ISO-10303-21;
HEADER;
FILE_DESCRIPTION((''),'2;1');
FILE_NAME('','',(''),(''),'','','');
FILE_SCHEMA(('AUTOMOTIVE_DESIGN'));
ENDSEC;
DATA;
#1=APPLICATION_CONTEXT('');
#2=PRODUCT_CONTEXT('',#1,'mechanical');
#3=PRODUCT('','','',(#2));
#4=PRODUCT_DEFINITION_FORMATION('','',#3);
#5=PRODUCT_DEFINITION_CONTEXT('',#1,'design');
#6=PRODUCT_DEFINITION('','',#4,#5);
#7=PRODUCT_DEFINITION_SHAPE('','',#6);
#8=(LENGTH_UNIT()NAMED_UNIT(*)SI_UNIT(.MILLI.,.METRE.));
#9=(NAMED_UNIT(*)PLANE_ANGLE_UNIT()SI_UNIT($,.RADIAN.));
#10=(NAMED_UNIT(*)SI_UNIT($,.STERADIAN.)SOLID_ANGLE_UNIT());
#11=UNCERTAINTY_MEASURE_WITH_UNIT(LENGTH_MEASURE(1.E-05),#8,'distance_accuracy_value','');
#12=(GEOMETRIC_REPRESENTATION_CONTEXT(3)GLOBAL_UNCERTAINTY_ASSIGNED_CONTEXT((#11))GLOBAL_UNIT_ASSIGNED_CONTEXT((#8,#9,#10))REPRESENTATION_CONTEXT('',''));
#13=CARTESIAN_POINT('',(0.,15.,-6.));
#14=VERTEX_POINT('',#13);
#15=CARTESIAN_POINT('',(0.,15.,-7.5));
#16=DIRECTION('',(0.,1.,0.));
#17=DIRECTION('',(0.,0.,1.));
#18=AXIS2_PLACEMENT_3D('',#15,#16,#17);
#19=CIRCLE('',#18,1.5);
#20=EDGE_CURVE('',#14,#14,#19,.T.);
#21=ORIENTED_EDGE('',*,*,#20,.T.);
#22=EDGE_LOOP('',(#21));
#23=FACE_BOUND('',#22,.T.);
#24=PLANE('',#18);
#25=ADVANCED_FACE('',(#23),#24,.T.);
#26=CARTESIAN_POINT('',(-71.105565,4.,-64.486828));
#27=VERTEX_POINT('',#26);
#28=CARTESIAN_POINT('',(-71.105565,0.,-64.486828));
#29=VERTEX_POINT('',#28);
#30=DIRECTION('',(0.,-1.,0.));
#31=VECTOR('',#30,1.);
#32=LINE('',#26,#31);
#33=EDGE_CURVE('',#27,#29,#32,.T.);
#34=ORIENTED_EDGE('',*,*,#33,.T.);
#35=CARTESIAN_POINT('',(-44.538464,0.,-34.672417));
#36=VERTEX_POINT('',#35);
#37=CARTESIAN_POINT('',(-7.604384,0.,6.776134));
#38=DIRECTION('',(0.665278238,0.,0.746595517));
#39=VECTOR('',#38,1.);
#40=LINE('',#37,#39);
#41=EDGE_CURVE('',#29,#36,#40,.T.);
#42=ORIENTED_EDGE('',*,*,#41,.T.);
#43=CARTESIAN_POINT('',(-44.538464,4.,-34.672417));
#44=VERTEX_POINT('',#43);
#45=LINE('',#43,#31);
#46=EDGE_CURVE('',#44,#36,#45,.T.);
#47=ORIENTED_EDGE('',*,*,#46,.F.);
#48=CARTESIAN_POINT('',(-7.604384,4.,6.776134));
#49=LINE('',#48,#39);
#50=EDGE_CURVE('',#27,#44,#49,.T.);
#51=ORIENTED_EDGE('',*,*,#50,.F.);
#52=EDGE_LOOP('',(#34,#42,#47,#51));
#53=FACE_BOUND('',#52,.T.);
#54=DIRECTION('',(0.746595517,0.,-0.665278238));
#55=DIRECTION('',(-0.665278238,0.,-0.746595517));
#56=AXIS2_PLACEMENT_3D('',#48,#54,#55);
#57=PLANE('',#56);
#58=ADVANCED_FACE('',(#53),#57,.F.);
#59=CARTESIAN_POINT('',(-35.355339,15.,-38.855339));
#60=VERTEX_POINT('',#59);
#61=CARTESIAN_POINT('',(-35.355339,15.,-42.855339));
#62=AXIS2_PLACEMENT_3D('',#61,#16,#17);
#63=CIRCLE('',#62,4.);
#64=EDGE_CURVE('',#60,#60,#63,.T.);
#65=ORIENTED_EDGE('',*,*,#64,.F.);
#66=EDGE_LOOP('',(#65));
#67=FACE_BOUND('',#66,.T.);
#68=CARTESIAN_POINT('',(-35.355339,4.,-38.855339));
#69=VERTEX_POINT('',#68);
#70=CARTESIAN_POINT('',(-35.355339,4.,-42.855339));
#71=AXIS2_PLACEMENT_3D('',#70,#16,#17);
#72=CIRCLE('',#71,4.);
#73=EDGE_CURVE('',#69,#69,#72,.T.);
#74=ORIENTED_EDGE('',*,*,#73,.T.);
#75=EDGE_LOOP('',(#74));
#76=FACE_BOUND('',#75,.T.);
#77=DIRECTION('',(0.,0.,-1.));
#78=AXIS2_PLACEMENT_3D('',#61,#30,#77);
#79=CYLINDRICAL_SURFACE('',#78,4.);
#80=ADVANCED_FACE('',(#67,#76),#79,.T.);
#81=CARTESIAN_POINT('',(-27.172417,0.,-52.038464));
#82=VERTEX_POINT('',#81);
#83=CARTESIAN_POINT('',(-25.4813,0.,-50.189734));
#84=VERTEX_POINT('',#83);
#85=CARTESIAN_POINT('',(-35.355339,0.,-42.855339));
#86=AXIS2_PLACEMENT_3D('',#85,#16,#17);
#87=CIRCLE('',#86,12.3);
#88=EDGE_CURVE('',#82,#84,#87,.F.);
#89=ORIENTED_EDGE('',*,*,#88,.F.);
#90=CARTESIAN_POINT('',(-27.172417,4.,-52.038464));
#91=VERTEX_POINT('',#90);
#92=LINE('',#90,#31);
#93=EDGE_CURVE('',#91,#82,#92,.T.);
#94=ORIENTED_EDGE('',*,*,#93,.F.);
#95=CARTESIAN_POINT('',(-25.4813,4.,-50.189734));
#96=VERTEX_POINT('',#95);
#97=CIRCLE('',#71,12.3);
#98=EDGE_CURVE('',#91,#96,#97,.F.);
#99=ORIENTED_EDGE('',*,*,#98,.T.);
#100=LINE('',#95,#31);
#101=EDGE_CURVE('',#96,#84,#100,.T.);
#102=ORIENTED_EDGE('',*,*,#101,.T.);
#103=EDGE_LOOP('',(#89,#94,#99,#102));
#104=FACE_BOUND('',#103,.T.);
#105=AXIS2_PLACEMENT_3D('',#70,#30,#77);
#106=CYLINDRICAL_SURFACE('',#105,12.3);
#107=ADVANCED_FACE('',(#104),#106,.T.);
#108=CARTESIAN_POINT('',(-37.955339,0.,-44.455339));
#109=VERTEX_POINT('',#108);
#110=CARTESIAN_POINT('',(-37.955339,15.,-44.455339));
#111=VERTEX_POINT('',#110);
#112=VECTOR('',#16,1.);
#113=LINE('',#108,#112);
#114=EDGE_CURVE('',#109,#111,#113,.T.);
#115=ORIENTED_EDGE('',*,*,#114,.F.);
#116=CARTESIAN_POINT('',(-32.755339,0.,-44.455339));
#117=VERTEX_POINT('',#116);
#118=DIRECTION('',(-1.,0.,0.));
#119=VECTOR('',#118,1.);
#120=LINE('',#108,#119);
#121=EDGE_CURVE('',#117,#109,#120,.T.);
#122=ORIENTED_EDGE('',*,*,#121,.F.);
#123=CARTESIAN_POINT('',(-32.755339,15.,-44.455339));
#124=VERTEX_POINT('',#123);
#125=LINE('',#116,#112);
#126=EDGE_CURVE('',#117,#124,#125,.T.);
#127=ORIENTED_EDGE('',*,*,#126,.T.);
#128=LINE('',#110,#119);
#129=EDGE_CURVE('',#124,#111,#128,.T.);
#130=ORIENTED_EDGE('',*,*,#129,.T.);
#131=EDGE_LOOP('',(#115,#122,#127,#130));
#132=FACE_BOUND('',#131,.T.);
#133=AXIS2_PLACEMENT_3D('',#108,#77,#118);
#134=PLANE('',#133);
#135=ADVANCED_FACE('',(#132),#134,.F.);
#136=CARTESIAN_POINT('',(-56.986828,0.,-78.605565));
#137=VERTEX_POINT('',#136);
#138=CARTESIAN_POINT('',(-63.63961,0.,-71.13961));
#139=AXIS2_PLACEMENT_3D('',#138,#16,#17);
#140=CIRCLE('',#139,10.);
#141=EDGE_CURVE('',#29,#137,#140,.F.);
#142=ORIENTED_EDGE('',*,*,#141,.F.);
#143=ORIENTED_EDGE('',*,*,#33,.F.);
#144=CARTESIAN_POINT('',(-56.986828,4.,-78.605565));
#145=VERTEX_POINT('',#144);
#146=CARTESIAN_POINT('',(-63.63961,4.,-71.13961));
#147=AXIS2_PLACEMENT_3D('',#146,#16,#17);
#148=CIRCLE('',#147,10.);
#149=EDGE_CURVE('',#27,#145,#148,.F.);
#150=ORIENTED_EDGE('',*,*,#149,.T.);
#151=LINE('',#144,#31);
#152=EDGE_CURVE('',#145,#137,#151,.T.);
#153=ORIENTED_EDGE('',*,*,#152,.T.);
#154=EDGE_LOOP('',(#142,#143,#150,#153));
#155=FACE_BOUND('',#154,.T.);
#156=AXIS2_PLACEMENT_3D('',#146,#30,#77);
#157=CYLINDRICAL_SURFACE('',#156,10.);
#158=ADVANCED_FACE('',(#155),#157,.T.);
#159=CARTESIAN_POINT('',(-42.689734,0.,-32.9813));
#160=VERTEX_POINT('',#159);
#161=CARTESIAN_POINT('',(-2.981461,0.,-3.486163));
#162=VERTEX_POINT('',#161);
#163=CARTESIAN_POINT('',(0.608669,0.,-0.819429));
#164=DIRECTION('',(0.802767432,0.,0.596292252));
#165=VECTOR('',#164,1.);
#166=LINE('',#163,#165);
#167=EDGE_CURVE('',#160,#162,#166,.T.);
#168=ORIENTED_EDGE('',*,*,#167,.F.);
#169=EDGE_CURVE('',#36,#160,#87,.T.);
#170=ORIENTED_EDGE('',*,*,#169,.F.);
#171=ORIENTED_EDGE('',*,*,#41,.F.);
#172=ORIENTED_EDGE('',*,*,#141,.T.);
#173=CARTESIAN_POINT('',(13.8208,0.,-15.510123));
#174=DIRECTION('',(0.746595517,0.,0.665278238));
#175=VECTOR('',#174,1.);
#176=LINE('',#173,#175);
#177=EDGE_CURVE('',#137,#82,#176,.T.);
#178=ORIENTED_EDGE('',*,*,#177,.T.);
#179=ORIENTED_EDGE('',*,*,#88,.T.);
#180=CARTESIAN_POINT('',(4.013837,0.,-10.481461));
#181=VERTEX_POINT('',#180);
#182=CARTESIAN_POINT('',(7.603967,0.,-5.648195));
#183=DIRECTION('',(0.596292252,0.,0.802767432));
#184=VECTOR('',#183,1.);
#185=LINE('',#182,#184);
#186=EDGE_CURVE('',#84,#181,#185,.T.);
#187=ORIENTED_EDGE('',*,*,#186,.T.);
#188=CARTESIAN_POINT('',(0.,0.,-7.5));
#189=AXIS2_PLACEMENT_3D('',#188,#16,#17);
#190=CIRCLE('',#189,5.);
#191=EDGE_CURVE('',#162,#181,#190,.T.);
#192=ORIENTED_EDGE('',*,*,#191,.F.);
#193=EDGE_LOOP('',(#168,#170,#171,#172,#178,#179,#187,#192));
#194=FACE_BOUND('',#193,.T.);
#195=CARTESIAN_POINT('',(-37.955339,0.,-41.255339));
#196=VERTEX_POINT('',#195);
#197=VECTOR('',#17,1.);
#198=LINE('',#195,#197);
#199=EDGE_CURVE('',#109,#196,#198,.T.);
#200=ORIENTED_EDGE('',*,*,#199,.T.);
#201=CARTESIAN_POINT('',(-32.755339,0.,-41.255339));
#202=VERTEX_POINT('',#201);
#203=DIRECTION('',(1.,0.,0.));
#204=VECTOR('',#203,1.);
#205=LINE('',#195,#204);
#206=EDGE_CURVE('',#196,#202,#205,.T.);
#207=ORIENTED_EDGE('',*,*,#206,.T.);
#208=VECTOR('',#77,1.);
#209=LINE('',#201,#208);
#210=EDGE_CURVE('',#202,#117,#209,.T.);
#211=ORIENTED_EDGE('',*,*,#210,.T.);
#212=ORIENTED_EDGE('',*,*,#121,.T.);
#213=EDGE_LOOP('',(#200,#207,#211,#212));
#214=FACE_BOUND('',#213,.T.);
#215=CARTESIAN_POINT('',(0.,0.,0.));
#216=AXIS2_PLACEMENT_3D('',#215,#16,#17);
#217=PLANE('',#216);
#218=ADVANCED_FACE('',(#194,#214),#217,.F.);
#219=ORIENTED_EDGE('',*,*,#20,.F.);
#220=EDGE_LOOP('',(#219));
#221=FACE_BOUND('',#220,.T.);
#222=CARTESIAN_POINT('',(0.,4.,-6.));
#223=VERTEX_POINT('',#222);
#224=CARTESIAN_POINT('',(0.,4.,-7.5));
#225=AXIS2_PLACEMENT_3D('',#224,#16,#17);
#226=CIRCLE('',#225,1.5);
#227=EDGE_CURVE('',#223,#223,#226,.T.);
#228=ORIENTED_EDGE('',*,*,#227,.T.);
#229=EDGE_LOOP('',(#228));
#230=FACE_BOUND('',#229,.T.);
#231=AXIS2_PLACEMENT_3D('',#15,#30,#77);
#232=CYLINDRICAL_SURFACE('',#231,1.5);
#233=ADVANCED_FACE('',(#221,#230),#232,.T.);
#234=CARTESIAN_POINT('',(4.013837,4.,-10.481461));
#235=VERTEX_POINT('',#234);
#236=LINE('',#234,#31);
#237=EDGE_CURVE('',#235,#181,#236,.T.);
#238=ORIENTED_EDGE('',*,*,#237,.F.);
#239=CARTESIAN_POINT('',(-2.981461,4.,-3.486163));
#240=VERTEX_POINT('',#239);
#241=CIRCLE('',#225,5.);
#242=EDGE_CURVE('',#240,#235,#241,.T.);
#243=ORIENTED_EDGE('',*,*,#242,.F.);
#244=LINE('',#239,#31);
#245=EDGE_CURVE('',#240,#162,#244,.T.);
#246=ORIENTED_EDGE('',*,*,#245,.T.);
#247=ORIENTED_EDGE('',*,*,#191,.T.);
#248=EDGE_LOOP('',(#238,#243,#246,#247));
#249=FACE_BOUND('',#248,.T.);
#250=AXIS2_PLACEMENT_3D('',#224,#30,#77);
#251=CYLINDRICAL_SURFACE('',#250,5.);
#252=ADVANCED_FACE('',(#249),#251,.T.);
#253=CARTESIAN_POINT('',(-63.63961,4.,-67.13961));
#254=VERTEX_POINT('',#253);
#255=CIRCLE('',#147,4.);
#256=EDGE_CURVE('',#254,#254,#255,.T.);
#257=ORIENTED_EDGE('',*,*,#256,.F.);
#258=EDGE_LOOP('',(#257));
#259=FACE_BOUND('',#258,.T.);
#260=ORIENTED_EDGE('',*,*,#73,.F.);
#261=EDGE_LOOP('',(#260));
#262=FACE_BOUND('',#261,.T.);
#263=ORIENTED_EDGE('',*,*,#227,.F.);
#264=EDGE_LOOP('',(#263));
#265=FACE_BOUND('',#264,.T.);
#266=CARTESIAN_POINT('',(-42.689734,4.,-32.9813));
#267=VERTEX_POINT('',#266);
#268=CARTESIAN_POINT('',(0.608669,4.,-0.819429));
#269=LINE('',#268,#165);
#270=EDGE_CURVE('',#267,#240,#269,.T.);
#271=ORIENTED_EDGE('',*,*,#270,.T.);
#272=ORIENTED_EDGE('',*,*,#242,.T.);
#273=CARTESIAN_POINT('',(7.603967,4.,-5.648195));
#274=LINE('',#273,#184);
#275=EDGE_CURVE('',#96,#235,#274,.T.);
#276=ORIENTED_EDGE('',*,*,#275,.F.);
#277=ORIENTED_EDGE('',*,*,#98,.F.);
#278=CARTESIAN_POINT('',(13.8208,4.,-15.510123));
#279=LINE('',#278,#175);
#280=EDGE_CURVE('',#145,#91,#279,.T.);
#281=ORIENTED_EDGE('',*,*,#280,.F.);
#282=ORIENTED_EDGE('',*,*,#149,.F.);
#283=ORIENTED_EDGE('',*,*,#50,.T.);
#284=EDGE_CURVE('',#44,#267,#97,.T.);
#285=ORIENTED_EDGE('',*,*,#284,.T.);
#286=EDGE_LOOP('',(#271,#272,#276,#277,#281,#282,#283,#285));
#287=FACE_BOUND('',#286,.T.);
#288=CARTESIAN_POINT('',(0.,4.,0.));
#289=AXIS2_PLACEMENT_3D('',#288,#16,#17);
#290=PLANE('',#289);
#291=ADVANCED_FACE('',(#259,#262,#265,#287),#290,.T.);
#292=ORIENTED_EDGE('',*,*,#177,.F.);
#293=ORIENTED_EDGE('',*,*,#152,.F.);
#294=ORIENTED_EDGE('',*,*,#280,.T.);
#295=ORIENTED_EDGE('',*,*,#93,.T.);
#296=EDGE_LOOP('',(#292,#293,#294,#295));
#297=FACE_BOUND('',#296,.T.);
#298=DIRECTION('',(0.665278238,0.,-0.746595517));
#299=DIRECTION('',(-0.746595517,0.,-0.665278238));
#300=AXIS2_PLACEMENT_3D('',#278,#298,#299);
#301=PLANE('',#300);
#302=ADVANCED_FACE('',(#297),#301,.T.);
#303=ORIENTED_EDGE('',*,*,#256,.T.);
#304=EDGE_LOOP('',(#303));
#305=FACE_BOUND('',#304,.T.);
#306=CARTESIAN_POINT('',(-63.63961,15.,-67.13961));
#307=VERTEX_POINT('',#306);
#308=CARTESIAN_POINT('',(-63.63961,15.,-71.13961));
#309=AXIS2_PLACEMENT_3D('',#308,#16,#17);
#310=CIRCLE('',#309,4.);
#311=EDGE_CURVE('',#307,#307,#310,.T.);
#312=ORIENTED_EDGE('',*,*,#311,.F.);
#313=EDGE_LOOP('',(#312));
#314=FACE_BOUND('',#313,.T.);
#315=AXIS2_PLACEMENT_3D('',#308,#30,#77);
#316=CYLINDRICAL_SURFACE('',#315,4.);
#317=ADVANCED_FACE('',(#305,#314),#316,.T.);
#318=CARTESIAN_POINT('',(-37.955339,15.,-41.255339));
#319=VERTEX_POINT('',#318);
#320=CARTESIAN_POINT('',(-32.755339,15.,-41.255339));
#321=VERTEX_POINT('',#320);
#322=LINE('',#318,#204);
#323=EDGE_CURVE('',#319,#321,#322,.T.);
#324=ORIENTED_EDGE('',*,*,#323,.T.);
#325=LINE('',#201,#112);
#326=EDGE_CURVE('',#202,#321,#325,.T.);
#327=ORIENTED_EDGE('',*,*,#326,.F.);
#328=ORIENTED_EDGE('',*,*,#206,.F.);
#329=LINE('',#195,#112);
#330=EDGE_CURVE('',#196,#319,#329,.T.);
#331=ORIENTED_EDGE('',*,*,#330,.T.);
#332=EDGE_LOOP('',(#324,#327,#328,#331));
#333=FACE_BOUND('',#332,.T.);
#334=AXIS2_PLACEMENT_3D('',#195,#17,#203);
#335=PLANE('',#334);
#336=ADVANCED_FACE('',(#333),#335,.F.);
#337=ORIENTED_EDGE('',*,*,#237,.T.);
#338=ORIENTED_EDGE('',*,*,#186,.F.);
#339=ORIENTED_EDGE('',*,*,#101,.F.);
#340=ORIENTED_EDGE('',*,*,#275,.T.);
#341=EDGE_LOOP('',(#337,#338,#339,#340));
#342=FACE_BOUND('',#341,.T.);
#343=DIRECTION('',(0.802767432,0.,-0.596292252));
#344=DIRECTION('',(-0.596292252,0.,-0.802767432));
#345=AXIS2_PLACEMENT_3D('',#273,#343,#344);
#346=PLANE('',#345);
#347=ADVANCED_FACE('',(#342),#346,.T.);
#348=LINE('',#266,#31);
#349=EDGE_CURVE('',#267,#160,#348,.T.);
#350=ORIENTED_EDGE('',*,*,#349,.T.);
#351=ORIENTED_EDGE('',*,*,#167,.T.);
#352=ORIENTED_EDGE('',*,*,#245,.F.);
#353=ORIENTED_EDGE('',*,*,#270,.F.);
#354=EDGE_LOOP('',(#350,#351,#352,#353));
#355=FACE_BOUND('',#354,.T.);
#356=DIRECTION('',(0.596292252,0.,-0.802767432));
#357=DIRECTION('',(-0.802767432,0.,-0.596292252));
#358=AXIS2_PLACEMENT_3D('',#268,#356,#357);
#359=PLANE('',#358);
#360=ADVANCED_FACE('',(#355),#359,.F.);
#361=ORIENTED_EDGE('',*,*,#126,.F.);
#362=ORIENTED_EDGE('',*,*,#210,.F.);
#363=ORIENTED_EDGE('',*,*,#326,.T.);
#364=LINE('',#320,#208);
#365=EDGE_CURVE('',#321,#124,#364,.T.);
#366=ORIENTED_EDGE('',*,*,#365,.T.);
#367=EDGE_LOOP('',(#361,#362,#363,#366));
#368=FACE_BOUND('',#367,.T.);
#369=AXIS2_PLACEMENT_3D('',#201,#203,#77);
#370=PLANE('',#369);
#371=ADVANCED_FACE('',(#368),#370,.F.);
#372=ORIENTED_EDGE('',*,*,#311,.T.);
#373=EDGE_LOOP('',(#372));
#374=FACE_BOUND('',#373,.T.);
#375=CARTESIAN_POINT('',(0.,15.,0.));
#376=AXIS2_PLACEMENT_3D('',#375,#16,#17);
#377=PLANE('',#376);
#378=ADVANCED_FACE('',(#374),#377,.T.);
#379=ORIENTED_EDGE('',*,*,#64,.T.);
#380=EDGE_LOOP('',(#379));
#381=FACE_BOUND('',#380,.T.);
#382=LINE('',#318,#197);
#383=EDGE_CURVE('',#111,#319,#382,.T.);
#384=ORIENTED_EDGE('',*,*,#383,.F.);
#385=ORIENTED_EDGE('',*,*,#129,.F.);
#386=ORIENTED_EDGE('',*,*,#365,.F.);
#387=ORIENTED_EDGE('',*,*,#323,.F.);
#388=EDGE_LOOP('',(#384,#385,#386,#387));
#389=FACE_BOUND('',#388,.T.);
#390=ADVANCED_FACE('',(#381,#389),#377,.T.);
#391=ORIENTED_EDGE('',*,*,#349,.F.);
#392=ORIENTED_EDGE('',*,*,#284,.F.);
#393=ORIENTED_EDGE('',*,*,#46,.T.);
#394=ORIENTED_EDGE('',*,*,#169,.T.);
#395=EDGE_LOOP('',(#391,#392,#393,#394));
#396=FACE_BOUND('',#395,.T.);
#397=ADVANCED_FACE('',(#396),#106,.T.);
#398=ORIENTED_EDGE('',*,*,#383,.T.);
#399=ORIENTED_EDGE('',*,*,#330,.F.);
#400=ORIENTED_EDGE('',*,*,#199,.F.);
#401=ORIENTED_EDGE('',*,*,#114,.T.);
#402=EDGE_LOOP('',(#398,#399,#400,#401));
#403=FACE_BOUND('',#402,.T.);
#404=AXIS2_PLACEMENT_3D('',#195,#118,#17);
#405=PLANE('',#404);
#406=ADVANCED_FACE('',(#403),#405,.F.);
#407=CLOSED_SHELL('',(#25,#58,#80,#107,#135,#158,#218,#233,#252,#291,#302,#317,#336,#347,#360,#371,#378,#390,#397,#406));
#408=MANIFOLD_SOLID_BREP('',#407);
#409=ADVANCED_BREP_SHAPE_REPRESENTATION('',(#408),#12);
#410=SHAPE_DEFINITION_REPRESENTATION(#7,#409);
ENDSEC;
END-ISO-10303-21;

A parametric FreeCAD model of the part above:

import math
import FreeCAD as App
import Part
import Sketcher
from FreeCAD import Vector
Q = App.Units.Quantity


def add_polygon(sketch, points):
    """Adds a closed chain of lines whose ends are joined by coincident constraints."""
    first, n = sketch.GeometryCount, len(points)
    for a, b in zip(points, points[1:] + points[:1]):
        sketch.addGeometry(Part.LineSegment(App.Vector(*a, 0), App.Vector(*b, 0)), False)
    for i in range(n):
        sketch.addConstraint(Sketcher.Constraint("Coincident", first + i, 2, first + (i + 1) % n, 1))

doc = App.newDocument("Part")
body = doc.addObject("PartDesign::Body", "Body")

# Sketch on XZ plane
sketch1 = doc.addObject("Sketcher::SketchObject", "Sketch")
body.addObject(sketch1)
sketch1.AttachmentSupport = (doc.XZ_Plane, [""])
sketch1.MapMode = "FlatFace"
sketch1.addGeometry(Part.ArcOfCircle(Part.Circle(Vector(-35.4, -42.9, 0), Vector(0, 0, 1), 12.3), math.radians(-48.3), math.radians(-36.6)), False)
sketch1.addGeometry(Part.LineSegment(Vector(-27.2, -52, 0), Vector(-57, -78.6, 0)), False)
sketch1.addGeometry(Part.ArcOfCircle(Part.Circle(Vector(-63.6, -71.1, 0), Vector(0, 0, 1), 10), math.radians(138), math.radians(312)), False)
sketch1.addGeometry(Part.LineSegment(Vector(-71.1, -64.5, 0), Vector(-44.5, -34.7, 0)), False)
sketch1.addGeometry(Part.ArcOfCircle(Part.Circle(Vector(-35.4, -42.9, 0), Vector(0, 0, 1), 12.3), math.radians(126.6), math.radians(138.3)), False)
sketch1.addGeometry(Part.LineSegment(Vector(-42.7, -33, 0), Vector(-3, -3.5, 0)), False)
sketch1.addGeometry(Part.ArcOfCircle(Part.Circle(Vector(0, -7.5, 0), Vector(0, 0, 1), 5), math.radians(-37), math.radians(127)), False)
sketch1.addGeometry(Part.LineSegment(Vector(4, -10.5, 0), Vector(-25.5, -50.2, 0)), False)
sketch1.addConstraint(Sketcher.Constraint("Tangent", 0, 1, 1, 1))
sketch1.addConstraint(Sketcher.Constraint("Tangent", 1, 2, 2, 2))
sketch1.addConstraint(Sketcher.Constraint("Tangent", 2, 1, 3, 1))
sketch1.addConstraint(Sketcher.Constraint("Tangent", 3, 2, 4, 2))
sketch1.addConstraint(Sketcher.Constraint("Tangent", 4, 1, 5, 1))
sketch1.addConstraint(Sketcher.Constraint("Tangent", 5, 2, 6, 2))
sketch1.addConstraint(Sketcher.Constraint("Tangent", 6, 1, 7, 1))
sketch1.addConstraint(Sketcher.Constraint("Tangent", 7, 2, 0, 2))
sketch1.addConstraint(Sketcher.Constraint("Coincident", 4, 3, 0, 3))
sketch1.addConstraint(Sketcher.Constraint("Equal", 0, 4))
sketch1.addConstraint(Sketcher.Constraint("PointOnObject", 6, 3, -2))
sketch1.addConstraint(Sketcher.Constraint("Radius", 2, Q("10 mm")))
sketch1.addConstraint(Sketcher.Constraint("Radius", 6, Q("5 mm")))
sketch1.addConstraint(Sketcher.Constraint("Radius", 0, Q("12.3 mm")))
sketch1.addConstraint(Sketcher.Constraint("DistanceY", 6, 3, -1, 1, Q("7.5 mm")))
sketch1.addConstraint(Sketcher.Constraint("DistanceY", 4, 1, -1, 1, Q("32.9813 mm")))
sketch1.addConstraint(Sketcher.Constraint("DistanceX", 7, 2, -1, 1, Q("25.4813 mm")))
sketch1.addConstraint(Sketcher.Constraint("DistanceY", 1, 2, 0, 1, Q("26.567102 mm")))
sketch1.addConstraint(Sketcher.Constraint("DistanceX", 2, 1, 3, 2, Q("26.567102 mm")))
pad1 = doc.addObject("PartDesign::Pad", "Pad")
body.addObject(pad1)
pad1.Profile = sketch1
pad1.Length = 4
pad1.Reversed = True

# Sketch on XZ plane
sketch2 = doc.addObject("Sketcher::SketchObject", "Sketch001")
body.addObject(sketch2)
sketch2.AttachmentSupport = (doc.XZ_Plane, [""])
sketch2.MapMode = "FlatFace"
sketch2.AttachmentOffset = App.Placement(Vector(0, 0, -4), App.Rotation())
sketch2.addGeometry(Part.Circle(Vector(-63.6, -71.1, 0), Vector(0, 0, 1), 4), False)
sketch2.addGeometry(Part.Circle(Vector(-35.4, -42.9, 0), Vector(0, 0, 1), 4), False)
sketch2.addGeometry(Part.Circle(Vector(0, -7.5, 0), Vector(0, 0, 1), 1.5), False)
sketch2.addConstraint(Sketcher.Constraint("Equal", 0, 1))
sketch2.addConstraint(Sketcher.Constraint("PointOnObject", 2, 3, -2))
sketch2.addConstraint(Sketcher.Constraint("Diameter", 0, Q("8 mm")))
sketch2.addConstraint(Sketcher.Constraint("Diameter", 2, Q("3 mm")))
sketch2.addConstraint(Sketcher.Constraint("DistanceY", 2, 3, -1, 1, Q("7.5 mm")))
sketch2.addConstraint(Sketcher.Constraint("DistanceX", 0, 3, -1, 1, Q("63.63961 mm")))
sketch2.addConstraint(Sketcher.Constraint("DistanceY", 0, 3, -1, 1, Q("71.13961 mm")))
sketch2.addConstraint(Sketcher.Constraint("DistanceX", 1, 3, -1, 1, Q("35.355339 mm")))
sketch2.addConstraint(Sketcher.Constraint("DistanceY", 1, 3, -1, 1, Q("42.855339 mm")))
pad2 = doc.addObject("PartDesign::Pad", "Pad001")
body.addObject(pad2)
pad2.Profile = sketch2
pad2.Length = 11
pad2.Reversed = True

# Sketch on XZ plane
sketch3 = doc.addObject("Sketcher::SketchObject", "Sketch002")
body.addObject(sketch3)
sketch3.AttachmentSupport = (doc.XZ_Plane, [""])
sketch3.MapMode = "FlatFace"
sketch3.AttachmentOffset = App.Placement(Vector(0, 0, -15), App.Rotation())
add_polygon(sketch3, [(-38, -44.5), (-38, -41.3), (-32.8, -41.3), (-32.8, -44.5)])  # lines 0-3
sketch3.addConstraint(Sketcher.Constraint("Vertical", 0))
sketch3.addConstraint(Sketcher.Constraint("Horizontal", 1))
sketch3.addConstraint(Sketcher.Constraint("Vertical", 2))
sketch3.addConstraint(Sketcher.Constraint("Horizontal", 3))
sketch3.addConstraint(Sketcher.Constraint("DistanceX", 1, 1, 1, 2, Q("5.2 mm")))
sketch3.addConstraint(Sketcher.Constraint("DistanceY", 0, 1, 0, 2, Q("3.2 mm")))
sketch3.addConstraint(Sketcher.Constraint("DistanceX", 0, 2, -1, 1, Q("37.955339 mm")))
sketch3.addConstraint(Sketcher.Constraint("DistanceY", 0, 2, -1, 1, Q("41.255339 mm")))
pocket1 = doc.addObject("PartDesign::Pocket", "Pocket")
body.addObject(pocket1)
pocket1.Profile = sketch3
pocket1.Type = "ThroughAll"
pocket1.Reversed = True

doc.recompute()
